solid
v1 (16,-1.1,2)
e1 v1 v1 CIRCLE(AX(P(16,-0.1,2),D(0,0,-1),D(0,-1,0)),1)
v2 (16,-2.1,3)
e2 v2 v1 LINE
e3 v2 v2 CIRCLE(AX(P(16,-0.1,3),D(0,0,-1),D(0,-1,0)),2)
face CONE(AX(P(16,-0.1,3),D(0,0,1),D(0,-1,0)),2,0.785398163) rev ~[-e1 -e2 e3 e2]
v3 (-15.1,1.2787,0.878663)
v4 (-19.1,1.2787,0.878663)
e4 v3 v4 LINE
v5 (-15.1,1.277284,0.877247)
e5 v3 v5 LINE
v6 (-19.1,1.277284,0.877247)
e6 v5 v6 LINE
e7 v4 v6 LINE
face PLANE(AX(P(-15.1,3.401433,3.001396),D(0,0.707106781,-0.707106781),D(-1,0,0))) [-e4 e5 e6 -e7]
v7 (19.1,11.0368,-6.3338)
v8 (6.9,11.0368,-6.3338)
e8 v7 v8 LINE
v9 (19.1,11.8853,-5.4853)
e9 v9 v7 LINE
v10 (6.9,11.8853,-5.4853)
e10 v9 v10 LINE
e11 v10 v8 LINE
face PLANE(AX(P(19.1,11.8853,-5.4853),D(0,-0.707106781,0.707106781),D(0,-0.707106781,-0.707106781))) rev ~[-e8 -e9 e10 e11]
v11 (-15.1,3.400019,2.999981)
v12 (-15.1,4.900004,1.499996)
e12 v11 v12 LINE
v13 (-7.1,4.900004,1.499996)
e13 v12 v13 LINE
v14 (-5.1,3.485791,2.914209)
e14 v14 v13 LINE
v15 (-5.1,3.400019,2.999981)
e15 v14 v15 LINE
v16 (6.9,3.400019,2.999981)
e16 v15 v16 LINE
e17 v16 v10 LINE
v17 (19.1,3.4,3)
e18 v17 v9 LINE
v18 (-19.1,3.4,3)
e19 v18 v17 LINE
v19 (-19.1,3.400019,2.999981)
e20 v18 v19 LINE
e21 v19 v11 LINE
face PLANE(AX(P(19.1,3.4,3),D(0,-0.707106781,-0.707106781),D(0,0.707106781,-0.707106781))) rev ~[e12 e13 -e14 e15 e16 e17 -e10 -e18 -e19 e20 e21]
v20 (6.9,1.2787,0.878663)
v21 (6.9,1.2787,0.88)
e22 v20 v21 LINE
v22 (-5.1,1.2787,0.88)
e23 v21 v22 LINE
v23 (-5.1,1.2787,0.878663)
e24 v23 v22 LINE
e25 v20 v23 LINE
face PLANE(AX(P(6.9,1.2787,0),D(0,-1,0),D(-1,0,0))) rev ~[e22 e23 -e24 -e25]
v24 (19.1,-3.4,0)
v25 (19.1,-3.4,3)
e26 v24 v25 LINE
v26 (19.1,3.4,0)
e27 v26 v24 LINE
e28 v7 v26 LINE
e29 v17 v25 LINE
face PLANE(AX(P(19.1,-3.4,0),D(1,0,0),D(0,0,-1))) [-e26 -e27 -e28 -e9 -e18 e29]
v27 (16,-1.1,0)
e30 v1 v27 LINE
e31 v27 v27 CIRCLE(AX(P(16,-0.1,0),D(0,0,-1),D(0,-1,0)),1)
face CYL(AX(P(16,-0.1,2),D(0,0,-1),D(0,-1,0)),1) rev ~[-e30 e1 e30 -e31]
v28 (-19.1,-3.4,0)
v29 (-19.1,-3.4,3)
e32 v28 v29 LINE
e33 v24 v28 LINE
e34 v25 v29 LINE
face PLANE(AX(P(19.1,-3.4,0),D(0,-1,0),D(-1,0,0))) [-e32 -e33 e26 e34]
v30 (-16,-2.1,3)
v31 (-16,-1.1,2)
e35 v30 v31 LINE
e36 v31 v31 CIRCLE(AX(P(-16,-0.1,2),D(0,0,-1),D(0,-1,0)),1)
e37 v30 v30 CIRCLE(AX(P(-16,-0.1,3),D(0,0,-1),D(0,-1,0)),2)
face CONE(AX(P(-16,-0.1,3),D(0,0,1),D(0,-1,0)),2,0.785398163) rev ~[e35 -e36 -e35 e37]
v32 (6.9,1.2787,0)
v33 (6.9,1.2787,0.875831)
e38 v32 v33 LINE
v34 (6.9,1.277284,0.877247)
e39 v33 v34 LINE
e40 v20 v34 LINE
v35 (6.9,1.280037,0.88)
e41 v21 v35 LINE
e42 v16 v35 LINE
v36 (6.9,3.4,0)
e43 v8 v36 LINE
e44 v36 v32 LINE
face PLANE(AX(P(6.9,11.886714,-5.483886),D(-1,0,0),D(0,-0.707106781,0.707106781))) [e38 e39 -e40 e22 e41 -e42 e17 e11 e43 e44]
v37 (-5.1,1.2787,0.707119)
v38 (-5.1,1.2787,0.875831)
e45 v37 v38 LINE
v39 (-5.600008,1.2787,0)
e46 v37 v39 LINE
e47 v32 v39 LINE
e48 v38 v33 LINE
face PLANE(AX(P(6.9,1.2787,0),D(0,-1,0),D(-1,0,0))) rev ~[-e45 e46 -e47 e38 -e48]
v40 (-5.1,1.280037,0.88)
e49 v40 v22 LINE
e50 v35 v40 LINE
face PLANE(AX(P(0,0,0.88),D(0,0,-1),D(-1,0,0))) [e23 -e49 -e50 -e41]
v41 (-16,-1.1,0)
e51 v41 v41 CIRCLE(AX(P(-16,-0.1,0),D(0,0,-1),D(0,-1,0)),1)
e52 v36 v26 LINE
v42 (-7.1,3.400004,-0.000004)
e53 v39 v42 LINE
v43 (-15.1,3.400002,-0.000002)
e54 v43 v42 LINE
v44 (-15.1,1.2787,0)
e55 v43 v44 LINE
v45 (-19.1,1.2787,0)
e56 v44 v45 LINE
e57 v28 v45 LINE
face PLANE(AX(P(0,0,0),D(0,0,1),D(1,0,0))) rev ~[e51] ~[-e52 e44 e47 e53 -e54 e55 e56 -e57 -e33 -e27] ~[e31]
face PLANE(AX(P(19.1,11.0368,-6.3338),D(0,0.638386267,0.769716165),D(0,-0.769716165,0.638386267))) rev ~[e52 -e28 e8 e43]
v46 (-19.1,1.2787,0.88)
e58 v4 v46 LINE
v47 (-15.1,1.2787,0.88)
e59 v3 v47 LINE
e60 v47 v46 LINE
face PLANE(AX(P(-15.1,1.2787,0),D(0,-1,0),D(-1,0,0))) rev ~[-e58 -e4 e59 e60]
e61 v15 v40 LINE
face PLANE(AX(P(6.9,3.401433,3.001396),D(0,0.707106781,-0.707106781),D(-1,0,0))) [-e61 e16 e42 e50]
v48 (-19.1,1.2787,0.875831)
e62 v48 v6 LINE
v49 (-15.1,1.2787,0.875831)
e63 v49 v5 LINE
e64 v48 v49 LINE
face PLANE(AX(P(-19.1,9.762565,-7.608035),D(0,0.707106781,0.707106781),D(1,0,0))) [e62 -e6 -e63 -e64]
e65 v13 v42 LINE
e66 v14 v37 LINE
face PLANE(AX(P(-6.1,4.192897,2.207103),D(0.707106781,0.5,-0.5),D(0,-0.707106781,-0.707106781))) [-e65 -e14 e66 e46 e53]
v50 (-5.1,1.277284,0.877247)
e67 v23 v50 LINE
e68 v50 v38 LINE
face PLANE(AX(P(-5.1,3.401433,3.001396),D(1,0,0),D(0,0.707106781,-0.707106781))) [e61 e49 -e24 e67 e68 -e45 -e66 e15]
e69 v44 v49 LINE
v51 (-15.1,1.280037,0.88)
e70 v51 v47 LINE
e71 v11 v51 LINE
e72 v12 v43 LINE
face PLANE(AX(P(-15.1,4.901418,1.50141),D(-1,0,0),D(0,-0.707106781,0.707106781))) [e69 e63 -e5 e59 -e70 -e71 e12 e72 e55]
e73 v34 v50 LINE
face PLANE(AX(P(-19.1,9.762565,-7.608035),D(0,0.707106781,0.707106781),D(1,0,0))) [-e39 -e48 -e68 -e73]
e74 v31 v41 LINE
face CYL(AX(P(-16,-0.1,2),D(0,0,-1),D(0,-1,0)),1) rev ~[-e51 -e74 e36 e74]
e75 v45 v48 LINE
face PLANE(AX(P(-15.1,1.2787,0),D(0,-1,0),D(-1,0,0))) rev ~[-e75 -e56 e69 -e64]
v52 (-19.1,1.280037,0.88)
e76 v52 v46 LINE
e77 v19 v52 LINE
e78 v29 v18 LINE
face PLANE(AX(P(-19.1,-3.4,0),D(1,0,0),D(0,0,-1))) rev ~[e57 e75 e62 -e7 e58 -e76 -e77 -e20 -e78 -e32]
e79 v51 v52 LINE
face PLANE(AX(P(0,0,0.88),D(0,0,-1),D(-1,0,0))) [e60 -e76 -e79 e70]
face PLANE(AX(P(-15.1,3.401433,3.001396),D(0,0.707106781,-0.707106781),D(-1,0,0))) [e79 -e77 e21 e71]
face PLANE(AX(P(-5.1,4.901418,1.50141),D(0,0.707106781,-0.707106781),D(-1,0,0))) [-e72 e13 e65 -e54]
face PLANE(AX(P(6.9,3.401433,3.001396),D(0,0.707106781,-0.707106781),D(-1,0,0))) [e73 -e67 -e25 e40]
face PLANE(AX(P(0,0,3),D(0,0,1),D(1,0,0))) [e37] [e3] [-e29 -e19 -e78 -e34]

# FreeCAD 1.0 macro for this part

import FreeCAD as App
import Part
import Sketcher

V = App.Vector
Q = App.Units.Quantity


def edges_at(feature, points):
    """Names of the edges that pass closest to the given points."""
    edges = feature.Shape.Edges
    near = lambda p: min(range(len(edges)), key=lambda i: edges[i].distToShape(Part.Vertex(*p))[0])
    return sorted({f"Edge{near(p) + 1}" for p in points})

doc = App.newDocument("Part")
body = doc.addObject("PartDesign::Body", "Body")

sketch1 = doc.addObject("Sketcher::SketchObject", "Sketch")
body.addObject(sketch1)
sketch1.AttachmentSupport = (doc.XY_Plane, [""])
sketch1.MapMode = "FlatFace"
sketch1.addGeometry(Part.LineSegment(V(19.1, 3.4, 0), V(-19.1, 3.4, 0)), False)
sketch1.addGeometry(Part.LineSegment(V(-19.1, 3.4, 0), V(-19.1, -3.4, 0)), False)
sketch1.addGeometry(Part.LineSegment(V(-19.1, -3.4, 0), V(19.1, -3.4, 0)), False)
sketch1.addGeometry(Part.LineSegment(V(19.1, -3.4, 0), V(19.1, 3.4, 0)), False)
sketch1.addConstraint(Sketcher.Constraint("Coincident", 0, 2, 1, 1))
sketch1.addConstraint(Sketcher.Constraint("Coincident", 1, 2, 2, 1))
sketch1.addConstraint(Sketcher.Constraint("Coincident", 2, 2, 3, 1))
sketch1.addConstraint(Sketcher.Constraint("Coincident", 3, 2, 0, 1))
sketch1.addConstraint(Sketcher.Constraint("Horizontal", 0))
sketch1.addConstraint(Sketcher.Constraint("Vertical", 1))
sketch1.addConstraint(Sketcher.Constraint("Horizontal", 2))
sketch1.addConstraint(Sketcher.Constraint("Vertical", 3))
sketch1.addConstraint(Sketcher.Constraint("Symmetric", 0, 2, 2, 2, -1, 1))
sketch1.addConstraint(Sketcher.Constraint("DistanceX", 0, 2, 0, 1, 38.2))
sketch1.addConstraint(Sketcher.Constraint("DistanceY", 1, 2, 1, 1, 6.8))
pad1 = doc.addObject("PartDesign::Pad", "Pad")
body.addObject(pad1)
pad1.Profile = sketch1
pad1.Length = 3

sketch2 = doc.addObject("Sketcher::SketchObject", "Sketch001")
body.addObject(sketch2)
sketch2.AttachmentSupport = (doc.XY_Plane, [""])
sketch2.MapMode = "FlatFace"
sketch2.AttachmentOffset = App.Placement(V(0, 0, 3), App.Rotation())
sketch2.addGeometry(Part.Circle(V(-16, -0.1, 0), V(0, 0, 1), 1), False)
sketch2.addGeometry(Part.Circle(V(16, -0.1, 0), V(0, 0, 1), 1), False)
sketch2.addConstraint(Sketcher.Constraint("Equal", 0, 1))
sketch2.addConstraint(Sketcher.Constraint("Symmetric", 0, 3, 1, 3, -2))
sketch2.addConstraint(Sketcher.Constraint("Diameter", 0, 2.0))
sketch2.addConstraint(Sketcher.Constraint("DistanceX", 0, 3, -1, 1, 16.0))
sketch2.addConstraint(Sketcher.Constraint("DistanceY", 0, 3, -1, 1, 0.1))
doc.recompute()
hole = doc.addObject("PartDesign::Hole", "Hole")
body.addObject(hole)
hole.Profile = sketch2
hole.ThreadType = "None"
hole.Diameter = 2
hole.DepthType = "Dimension"
hole.Depth = 4
hole.DrillPoint = "Angled"
hole.DrillPointAngle = 118
hole.HoleCutType = "Countersink"
hole.HoleCutDiameter = 4
hole.HoleCutCountersinkAngle = 90

sketch3 = doc.addObject("Sketcher::SketchObject", "Sketch002")
body.addObject(sketch3)
sketch3.AttachmentSupport = (doc.YZ_Plane, [""])
sketch3.MapMode = "FlatFace"
sketch3.AttachmentOffset = App.Placement(V(0, 0, 19.1), App.Rotation())
sketch3.addGeometry(Part.LineSegment(V(11.8853, -5.4853, 0), V(3.4, 3, 0)), False)
sketch3.addGeometry(Part.LineSegment(V(3.4, 3, 0), V(3.4, 0, 0)), False)
sketch3.addGeometry(Part.LineSegment(V(3.4, 0, 0), V(11.0368, -6.3338, 0)), False)
sketch3.addGeometry(Part.LineSegment(V(11.0368, -6.3338, 0), V(11.8853, -5.4853, 0)), False)
sketch3.addConstraint(Sketcher.Constraint("Coincident", 0, 2, 1, 1))
sketch3.addConstraint(Sketcher.Constraint("Coincident", 1, 2, 2, 1))
sketch3.addConstraint(Sketcher.Constraint("Coincident", 2, 2, 3, 1))
sketch3.addConstraint(Sketcher.Constraint("Coincident", 3, 2, 0, 1))
sketch3.addConstraint(Sketcher.Constraint("Vertical", 1))
sketch3.addConstraint(Sketcher.Constraint("PointOnObject", 1, 2, -1))
sketch3.addConstraint(Sketcher.Constraint("Perpendicular", 0, 3))
sketch3.addConstraint(Sketcher.Constraint("Angle", 3, Q("45 deg")))
sketch3.addConstraint(Sketcher.Constraint("Distance", 0, 12.0))
sketch3.addConstraint(Sketcher.Constraint("Distance", 3, 1.2))
sketch3.addConstraint(Sketcher.Constraint("DistanceY", 1, 2, 1, 1, 3.0))
sketch3.addConstraint(Sketcher.Constraint("DistanceX", -1, 1, 0, 2, 3.4))
pad2 = doc.addObject("PartDesign::Pad", "Pad001")
body.addObject(pad2)
pad2.Profile = sketch3
pad2.Length = 38.2
pad2.Reversed = True

sketch4 = doc.addObject("Sketcher::SketchObject", "Sketch003")
body.addObject(sketch4)
sketch4.Placement = App.Placement(V(-19.1, 11.8853, -5.4853), App.Rotation(V(1, 0, 0), V(0, 0.707106781, -0.707106781), V(0, 0.707106781, 0.707106781), "ZXY"))
sketch4.addGeometry(Part.LineSegment(V(0, -12, 0), V(4, -12, 0)), False)
sketch4.addGeometry(Part.LineSegment(V(4, -12, 0), V(4, -9.8787, 0)), False)
sketch4.addGeometry(Part.LineSegment(V(4, -9.8787, 0), V(14, -9.8787, 0)), False)
sketch4.addGeometry(Part.LineSegment(V(14, -9.8787, 0), V(14, -12, 0)), False)
sketch4.addGeometry(Part.LineSegment(V(14, -12, 0), V(26, -12, 0)), False)
sketch4.addGeometry(Part.LineSegment(V(26, -12, 0), V(26, 0, 0)), False)
sketch4.addGeometry(Part.LineSegment(V(26, 0, 0), V(0, 0, 0)), False)
sketch4.addGeometry(Part.LineSegment(V(0, 0, 0), V(0, -12, 0)), False)
sketch4.addConstraint(Sketcher.Constraint("Coincident", 0, 2, 1, 1))
sketch4.addConstraint(Sketcher.Constraint("Coincident", 1, 2, 2, 1))
sketch4.addConstraint(Sketcher.Constraint("Coincident", 2, 2, 3, 1))
sketch4.addConstraint(Sketcher.Constraint("Coincident", 3, 2, 4, 1))
sketch4.addConstraint(Sketcher.Constraint("Coincident", 4, 2, 5, 1))
sketch4.addConstraint(Sketcher.Constraint("Coincident", 5, 2, 6, 1))
sketch4.addConstraint(Sketcher.Constraint("Coincident", 6, 2, 7, 1))
sketch4.addConstraint(Sketcher.Constraint("Coincident", 7, 2, 0, 1))
sketch4.addConstraint(Sketcher.Constraint("Horizontal", 0))
sketch4.addConstraint(Sketcher.Constraint("Vertical", 1))
sketch4.addConstraint(Sketcher.Constraint("Horizontal", 2))
sketch4.addConstraint(Sketcher.Constraint("Vertical", 3))
sketch4.addConstraint(Sketcher.Constraint("Horizontal", 4))
sketch4.addConstraint(Sketcher.Constraint("Vertical", 5))
sketch4.addConstraint(Sketcher.Constraint("Horizontal", 6))
sketch4.addConstraint(Sketcher.Constraint("Vertical", 7))
sketch4.addConstraint(Sketcher.Constraint("Coincident", 6, 2, -1, 1))
sketch4.addConstraint(Sketcher.Constraint("Horizontal", 0, 2, 3, 2))
sketch4.addConstraint(Sketcher.Constraint("Equal", 4, 5))
sketch4.addConstraint(Sketcher.Constraint("DistanceX", 0, 1, 0, 2, 4.0))
sketch4.addConstraint(Sketcher.Constraint("DistanceX", 6, 2, 6, 1, 26.0))
sketch4.addConstraint(Sketcher.Constraint("DistanceX", -1, 1, 2, 2, 14.0))
sketch4.addConstraint(Sketcher.Constraint("DistanceY", 1, 1, 1, 2, 2.1213))
pocket1 = doc.addObject("PartDesign::Pocket", "Pocket")
body.addObject(pocket1)
pocket1.Profile = sketch4
pocket1.Length = 3

sketch5 = doc.addObject("Sketcher::SketchObject", "Sketch004")
body.addObject(sketch5)
sketch5.AttachmentSupport = (doc.XY_Plane, [""])
sketch5.MapMode = "FlatFace"
sketch5.addGeometry(Part.LineSegment(V(-5.1, 1.2787, 0), V(-5.1, 2.1574, 0)), False)
sketch5.addGeometry(Part.LineSegment(V(-5.1, 2.1574, 0), V(6.9, 2.1574, 0)), False)
sketch5.addGeometry(Part.LineSegment(V(6.9, 2.1574, 0), V(6.9, 1.2787, 0)), False)
sketch5.addGeometry(Part.LineSegment(V(6.9, 1.2787, 0), V(-5.1, 1.2787, 0)), False)
sketch5.addGeometry(Part.LineSegment(V(-19.1, 2.1574, 0), V(-15.1, 2.1574, 0)), False)
sketch5.addGeometry(Part.LineSegment(V(-15.1, 2.1574, 0), V(-15.1, 1.2787, 0)), False)
sketch5.addGeometry(Part.LineSegment(V(-15.1, 1.2787, 0), V(-19.1, 1.2787, 0)), False)
sketch5.addGeometry(Part.LineSegment(V(-19.1, 1.2787, 0), V(-19.1, 2.1574, 0)), False)
sketch5.addConstraint(Sketcher.Constraint("Coincident", 0, 2, 1, 1))
sketch5.addConstraint(Sketcher.Constraint("Coincident", 1, 2, 2, 1))
sketch5.addConstraint(Sketcher.Constraint("Coincident", 2, 2, 3, 1))
sketch5.addConstraint(Sketcher.Constraint("Coincident", 3, 2, 0, 1))
sketch5.addConstraint(Sketcher.Constraint("Coincident", 4, 2, 5, 1))
sketch5.addConstraint(Sketcher.Constraint("Coincident", 5, 2, 6, 1))
sketch5.addConstraint(Sketcher.Constraint("Coincident", 6, 2, 7, 1))
sketch5.addConstraint(Sketcher.Constraint("Coincident", 7, 2, 4, 1))
sketch5.addConstraint(Sketcher.Constraint("Vertical", 0))
sketch5.addConstraint(Sketcher.Constraint("Horizontal", 1))
sketch5.addConstraint(Sketcher.Constraint("Vertical", 2))
sketch5.addConstraint(Sketcher.Constraint("Horizontal", 3))
sketch5.addConstraint(Sketcher.Constraint("Horizontal", 4))
sketch5.addConstraint(Sketcher.Constraint("Vertical", 5))
sketch5.addConstraint(Sketcher.Constraint("Horizontal", 6))
sketch5.addConstraint(Sketcher.Constraint("Vertical", 7))
sketch5.addConstraint(Sketcher.Constraint("Horizontal", 1, 2, 4, 2))
sketch5.addConstraint(Sketcher.Constraint("Horizontal", 3, 2, 5, 2))
sketch5.addConstraint(Sketcher.Constraint("DistanceX", 1, 1, 1, 2, 12.0))
sketch5.addConstraint(Sketcher.Constraint("DistanceX", 4, 1, 4, 2, 4.0))
sketch5.addConstraint(Sketcher.Constraint("DistanceX", 4, 2, 0, 2, 10.0))
sketch5.addConstraint(Sketcher.Constraint("DistanceX", 0, 2, -1, 1, 5.1))
sketch5.addConstraint(Sketcher.Constraint("DistanceY", 0, 1, 0, 2, 0.8787))
sketch5.addConstraint(Sketcher.Constraint("DistanceY", -1, 1, 0, 2, 2.1574))
pocket2 = doc.addObject("PartDesign::Pocket", "Pocket001")
body.addObject(pocket2)
pocket2.Profile = sketch5
pocket2.Length = 0.88
pocket2.Reversed = True
doc.recompute()

chamfer = doc.addObject("PartDesign::Chamfer", "Chamfer")
body.addObject(chamfer)
chamfer.Base = (pocket2, edges_at(pocket2, [(-5.1, 4.15, 0.75)]))
chamfer.Size = 2

doc.recompute()
